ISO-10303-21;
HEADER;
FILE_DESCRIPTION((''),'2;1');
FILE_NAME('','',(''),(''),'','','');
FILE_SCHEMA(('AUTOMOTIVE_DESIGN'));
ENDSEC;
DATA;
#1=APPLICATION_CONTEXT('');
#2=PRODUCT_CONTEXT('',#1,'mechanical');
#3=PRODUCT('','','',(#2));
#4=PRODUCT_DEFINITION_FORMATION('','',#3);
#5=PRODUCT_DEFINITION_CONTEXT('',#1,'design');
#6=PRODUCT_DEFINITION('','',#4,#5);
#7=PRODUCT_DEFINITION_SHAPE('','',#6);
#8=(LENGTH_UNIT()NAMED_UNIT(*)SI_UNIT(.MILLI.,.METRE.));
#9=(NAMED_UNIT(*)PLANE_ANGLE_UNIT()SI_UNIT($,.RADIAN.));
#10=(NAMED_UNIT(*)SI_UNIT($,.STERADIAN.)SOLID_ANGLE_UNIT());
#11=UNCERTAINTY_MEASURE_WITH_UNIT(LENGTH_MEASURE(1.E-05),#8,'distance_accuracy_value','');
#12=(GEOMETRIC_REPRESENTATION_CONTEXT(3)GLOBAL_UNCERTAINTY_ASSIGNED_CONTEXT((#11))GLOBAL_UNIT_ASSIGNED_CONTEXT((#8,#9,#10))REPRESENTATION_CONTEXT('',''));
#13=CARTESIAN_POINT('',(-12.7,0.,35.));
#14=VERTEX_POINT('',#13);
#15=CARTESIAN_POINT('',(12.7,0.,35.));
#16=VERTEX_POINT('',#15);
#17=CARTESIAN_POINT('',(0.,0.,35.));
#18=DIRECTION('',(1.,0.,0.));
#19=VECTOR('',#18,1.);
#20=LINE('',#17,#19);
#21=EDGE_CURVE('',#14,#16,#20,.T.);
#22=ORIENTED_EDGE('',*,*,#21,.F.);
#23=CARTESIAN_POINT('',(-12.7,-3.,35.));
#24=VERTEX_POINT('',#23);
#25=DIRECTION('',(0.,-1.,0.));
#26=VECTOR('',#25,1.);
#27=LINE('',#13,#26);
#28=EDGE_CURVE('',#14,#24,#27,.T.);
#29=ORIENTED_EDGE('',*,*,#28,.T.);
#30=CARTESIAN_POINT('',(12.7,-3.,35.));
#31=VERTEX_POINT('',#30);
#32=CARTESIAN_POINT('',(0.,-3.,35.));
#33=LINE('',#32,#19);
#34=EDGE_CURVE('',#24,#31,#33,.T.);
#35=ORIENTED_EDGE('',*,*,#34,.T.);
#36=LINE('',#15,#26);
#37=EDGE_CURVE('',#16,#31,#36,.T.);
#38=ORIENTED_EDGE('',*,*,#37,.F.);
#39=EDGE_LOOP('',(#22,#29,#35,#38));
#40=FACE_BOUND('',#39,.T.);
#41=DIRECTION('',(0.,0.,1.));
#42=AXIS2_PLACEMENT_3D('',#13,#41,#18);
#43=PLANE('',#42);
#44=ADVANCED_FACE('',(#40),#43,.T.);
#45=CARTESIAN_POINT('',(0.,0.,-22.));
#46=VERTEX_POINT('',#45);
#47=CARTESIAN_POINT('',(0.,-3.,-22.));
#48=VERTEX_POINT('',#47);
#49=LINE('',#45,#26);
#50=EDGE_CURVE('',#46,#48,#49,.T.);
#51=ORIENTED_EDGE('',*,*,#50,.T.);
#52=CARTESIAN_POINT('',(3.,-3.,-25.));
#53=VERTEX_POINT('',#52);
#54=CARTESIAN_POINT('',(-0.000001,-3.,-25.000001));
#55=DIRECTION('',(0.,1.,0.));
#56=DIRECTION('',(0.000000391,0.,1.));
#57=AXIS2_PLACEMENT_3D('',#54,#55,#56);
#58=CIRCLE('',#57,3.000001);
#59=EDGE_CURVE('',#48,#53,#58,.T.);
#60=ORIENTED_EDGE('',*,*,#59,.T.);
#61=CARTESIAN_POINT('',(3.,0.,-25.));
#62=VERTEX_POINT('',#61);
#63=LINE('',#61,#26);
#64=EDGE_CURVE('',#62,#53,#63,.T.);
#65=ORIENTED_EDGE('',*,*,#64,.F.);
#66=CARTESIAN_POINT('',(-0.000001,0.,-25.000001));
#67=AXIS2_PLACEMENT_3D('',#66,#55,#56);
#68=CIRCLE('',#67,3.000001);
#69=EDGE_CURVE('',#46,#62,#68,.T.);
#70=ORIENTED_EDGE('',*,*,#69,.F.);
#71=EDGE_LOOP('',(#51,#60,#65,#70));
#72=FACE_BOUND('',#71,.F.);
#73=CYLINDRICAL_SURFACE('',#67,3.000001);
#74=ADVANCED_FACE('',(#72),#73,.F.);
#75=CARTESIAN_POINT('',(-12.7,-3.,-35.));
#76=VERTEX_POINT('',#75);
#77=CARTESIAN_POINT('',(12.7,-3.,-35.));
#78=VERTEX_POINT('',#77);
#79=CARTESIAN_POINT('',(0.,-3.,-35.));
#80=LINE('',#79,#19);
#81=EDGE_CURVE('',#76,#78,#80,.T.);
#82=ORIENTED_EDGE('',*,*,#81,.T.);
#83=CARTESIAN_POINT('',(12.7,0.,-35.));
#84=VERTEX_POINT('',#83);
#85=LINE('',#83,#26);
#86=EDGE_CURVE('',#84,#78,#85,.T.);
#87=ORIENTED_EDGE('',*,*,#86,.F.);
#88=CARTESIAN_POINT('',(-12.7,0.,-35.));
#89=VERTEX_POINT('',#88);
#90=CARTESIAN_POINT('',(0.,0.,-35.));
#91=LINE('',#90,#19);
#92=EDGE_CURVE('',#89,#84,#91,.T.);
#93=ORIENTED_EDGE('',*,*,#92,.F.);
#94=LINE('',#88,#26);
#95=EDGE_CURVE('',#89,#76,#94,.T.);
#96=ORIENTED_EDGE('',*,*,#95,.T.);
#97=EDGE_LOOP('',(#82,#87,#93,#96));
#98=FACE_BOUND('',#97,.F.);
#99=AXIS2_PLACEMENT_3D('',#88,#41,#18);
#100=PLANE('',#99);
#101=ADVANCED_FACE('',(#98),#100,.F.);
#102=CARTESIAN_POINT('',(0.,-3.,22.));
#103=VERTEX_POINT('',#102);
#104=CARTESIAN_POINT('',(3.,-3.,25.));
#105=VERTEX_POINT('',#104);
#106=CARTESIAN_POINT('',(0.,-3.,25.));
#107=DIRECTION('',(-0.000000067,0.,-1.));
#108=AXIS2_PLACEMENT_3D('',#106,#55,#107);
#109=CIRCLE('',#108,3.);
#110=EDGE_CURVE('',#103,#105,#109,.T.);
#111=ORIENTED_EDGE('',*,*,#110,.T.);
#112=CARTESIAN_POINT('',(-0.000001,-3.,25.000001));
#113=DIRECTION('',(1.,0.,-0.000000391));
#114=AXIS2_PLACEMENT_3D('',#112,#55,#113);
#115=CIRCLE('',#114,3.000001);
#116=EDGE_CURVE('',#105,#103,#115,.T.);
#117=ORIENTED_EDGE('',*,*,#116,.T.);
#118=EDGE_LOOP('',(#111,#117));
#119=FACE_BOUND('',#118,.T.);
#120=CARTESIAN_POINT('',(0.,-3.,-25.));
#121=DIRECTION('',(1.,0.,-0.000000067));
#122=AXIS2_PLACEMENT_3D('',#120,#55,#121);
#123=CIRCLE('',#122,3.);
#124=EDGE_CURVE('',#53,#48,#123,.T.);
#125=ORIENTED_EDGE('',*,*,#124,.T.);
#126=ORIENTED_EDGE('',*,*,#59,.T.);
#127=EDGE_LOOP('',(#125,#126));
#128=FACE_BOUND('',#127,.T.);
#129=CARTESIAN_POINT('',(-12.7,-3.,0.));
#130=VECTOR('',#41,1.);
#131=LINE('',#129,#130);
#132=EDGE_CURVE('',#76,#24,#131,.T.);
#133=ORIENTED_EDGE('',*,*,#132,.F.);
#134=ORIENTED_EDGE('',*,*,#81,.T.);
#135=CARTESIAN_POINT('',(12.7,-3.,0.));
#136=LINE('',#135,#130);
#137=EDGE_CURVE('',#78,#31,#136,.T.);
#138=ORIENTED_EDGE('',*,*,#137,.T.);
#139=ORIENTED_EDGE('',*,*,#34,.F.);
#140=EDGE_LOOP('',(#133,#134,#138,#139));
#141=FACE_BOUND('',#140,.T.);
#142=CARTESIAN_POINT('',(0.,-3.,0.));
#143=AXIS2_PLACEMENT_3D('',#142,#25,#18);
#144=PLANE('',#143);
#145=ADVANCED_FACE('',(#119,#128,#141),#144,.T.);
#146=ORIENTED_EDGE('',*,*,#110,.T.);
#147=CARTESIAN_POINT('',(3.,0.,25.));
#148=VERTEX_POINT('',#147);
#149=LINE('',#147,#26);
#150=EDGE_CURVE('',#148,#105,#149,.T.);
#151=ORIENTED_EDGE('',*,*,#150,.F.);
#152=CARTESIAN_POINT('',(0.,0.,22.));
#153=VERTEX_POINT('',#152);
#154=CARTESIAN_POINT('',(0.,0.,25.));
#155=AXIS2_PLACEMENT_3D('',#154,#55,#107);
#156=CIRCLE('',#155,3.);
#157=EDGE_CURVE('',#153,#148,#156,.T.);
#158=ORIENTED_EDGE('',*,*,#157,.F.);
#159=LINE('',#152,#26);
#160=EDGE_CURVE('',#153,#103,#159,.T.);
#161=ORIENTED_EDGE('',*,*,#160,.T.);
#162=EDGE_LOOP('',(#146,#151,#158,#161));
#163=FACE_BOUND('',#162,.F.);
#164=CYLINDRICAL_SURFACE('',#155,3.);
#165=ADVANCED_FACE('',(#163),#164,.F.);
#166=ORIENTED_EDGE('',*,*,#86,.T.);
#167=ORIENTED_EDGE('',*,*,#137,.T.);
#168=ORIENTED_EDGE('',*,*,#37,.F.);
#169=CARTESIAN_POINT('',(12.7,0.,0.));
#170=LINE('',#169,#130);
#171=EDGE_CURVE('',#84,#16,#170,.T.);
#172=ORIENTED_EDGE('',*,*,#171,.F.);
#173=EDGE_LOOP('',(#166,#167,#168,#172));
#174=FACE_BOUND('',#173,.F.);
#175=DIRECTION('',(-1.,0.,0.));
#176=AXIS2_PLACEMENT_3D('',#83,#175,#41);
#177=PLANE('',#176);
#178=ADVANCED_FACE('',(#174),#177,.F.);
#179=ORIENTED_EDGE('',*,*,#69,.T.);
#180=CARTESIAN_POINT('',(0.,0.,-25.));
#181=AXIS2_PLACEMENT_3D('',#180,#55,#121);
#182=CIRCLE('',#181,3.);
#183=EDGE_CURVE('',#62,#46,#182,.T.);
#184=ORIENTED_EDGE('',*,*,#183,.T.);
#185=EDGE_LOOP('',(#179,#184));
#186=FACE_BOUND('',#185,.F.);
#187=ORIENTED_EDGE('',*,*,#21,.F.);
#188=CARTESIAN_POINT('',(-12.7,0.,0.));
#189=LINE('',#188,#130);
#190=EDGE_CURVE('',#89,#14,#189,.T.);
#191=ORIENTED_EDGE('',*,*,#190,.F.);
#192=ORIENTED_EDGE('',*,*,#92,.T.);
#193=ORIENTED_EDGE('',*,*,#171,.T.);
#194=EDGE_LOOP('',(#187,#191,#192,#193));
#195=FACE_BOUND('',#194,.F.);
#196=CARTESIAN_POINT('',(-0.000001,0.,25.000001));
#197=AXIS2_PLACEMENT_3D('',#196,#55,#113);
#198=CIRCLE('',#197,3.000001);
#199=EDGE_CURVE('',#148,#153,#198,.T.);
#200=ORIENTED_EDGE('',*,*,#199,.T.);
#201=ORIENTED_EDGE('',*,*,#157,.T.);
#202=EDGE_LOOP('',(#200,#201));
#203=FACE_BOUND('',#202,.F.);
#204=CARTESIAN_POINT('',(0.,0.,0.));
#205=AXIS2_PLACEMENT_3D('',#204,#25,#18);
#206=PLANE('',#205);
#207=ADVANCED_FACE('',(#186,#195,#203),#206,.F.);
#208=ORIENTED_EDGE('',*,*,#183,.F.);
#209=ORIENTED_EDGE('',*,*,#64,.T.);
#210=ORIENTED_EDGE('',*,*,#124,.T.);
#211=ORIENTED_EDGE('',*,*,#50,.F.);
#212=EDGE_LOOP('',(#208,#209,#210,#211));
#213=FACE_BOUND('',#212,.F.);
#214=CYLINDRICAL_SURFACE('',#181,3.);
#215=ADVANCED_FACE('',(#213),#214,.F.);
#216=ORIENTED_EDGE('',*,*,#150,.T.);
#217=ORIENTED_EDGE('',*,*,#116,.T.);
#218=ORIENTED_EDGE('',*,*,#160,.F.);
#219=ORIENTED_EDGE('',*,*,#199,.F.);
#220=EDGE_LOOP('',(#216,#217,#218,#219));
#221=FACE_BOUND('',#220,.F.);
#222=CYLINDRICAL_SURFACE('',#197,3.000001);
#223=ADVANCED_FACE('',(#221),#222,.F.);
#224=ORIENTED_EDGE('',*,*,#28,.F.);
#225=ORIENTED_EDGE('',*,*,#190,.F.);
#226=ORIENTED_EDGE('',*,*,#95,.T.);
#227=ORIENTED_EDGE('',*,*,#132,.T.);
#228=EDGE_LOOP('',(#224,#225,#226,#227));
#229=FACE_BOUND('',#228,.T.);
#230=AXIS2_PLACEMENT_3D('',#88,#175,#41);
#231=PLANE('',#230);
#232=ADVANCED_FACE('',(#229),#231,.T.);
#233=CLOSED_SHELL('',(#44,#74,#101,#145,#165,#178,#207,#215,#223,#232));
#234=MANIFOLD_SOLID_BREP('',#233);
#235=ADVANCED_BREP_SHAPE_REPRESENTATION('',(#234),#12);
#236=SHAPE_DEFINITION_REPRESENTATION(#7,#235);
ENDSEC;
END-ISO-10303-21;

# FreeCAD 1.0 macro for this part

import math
import FreeCAD as App
import Part
import Sketcher
from FreeCAD import Vector
Q = App.Units.Quantity

doc = App.newDocument("Part")
body = doc.addObject("PartDesign::Body", "Body")

# Sketch on XZ plane
sketch1 = body.newObject("Sketcher::SketchObject", "Sketch")
sketch1.AttachmentSupport = (doc.getObject("XZ_Plane"), [""])
sketch1.MapMode = "FlatFace"
sketch1.addGeometry([
    Part.LineSegment(Vector(-12.7, 35, 0), Vector(-12.7, -35, 0)),  # 0
    Part.LineSegment(Vector(-12.7, -35, 0), Vector(12.7, -35, 0)),  # 1
    Part.LineSegment(Vector(12.7, -35, 0), Vector(12.7, 35, 0)),  # 2
    Part.LineSegment(Vector(12.7, 35, 0), Vector(-12.7, 35, 0)),  # 3
    Part.ArcOfCircle(Part.Circle(Vector(-0.000001, -25.000001, 0), Vector(0, 0, 1), 3.000001), math.radians(0.000022), math.radians(89.999978)),  # 4
    Part.ArcOfCircle(Part.Circle(Vector(0, -25, 0), Vector(0, 0, 1), 3), math.radians(90.000004), math.radians(359.999996)),  # 5
    Part.ArcOfCircle(Part.Circle(Vector(0, 25, 0), Vector(0, 0, 1), 3), math.radians(0.000004), math.radians(269.999996)),  # 6
    Part.ArcOfCircle(Part.Circle(Vector(-0.000001, 25.000001, 0), Vector(0, 0, 1), 3.000001), math.radians(-89.999978), math.radians(-0.000022)),  # 7
], False)
sketch1.addConstraint([
    Sketcher.Constraint("Coincident", 0, 2, 1, 1),
    Sketcher.Constraint("Coincident", 1, 2, 2, 1),
    Sketcher.Constraint("Coincident", 2, 2, 3, 1),
    Sketcher.Constraint("Coincident", 3, 2, 0, 1),
    Sketcher.Constraint("Tangent", 4, 1, 5, 2),
    Sketcher.Constraint("Coincident", 5, 1, 4, 2),
    Sketcher.Constraint("Tangent", 6, 1, 7, 2),
    Sketcher.Constraint("Coincident", 7, 1, 6, 2),
    Sketcher.Constraint("Vertical", 0),
    Sketcher.Constraint("Horizontal", 1),
    Sketcher.Constraint("Vertical", 2),
    Sketcher.Constraint("Horizontal", 3),
    Sketcher.Constraint("Equal", 5, 6),
    Sketcher.Constraint("Symmetric", 4, 3, 6, 3, -1, 1),
    Sketcher.Constraint("Symmetric", 0, 2, 2, 2, -1, 1),
    Sketcher.Constraint("Symmetric", 4, 1, 6, 1, -1),
    Sketcher.Constraint("PointOnObject", 5, 1, -2),
    Sketcher.Constraint("PointOnObject", 7, 1, -2),
    Sketcher.Constraint("Horizontal", 5, 3, 4, 1),
    Sketcher.Constraint("Radius", 4, Q("3.000001 mm")),
    Sketcher.Constraint("DistanceY", 0, 2, 0, 1, Q("70 mm")),
    Sketcher.Constraint("DistanceX", 1, 1, 1, 2, Q("25.4 mm")),
    Sketcher.Constraint("DistanceY", 4, 3, -1, 1, Q("25.000001 mm")),
])
pad1 = body.newObject("PartDesign::Pad", "Pad")
pad1.Profile = sketch1
pad1.Length = 3

doc.recompute()
